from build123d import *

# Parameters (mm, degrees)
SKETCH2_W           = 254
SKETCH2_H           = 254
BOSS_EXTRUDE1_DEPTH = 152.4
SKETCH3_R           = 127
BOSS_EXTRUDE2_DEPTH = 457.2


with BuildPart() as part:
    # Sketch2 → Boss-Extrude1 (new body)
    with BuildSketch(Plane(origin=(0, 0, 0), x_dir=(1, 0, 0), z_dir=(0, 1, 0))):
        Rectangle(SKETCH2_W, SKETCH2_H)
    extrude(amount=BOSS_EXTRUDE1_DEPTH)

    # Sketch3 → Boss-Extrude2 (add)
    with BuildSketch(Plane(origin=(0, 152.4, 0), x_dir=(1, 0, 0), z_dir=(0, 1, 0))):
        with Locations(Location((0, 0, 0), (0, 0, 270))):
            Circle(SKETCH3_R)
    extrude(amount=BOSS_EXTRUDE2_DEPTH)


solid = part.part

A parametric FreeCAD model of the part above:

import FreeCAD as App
import Part
import Sketcher
Q = App.Units.Quantity

doc = App.newDocument("Part")
body = doc.addObject("PartDesign::Body", "Body")

sketch1 = body.newObject("Sketcher::SketchObject", "Sketch")
sketch1.AttachmentSupport = (doc.getObject("XZ_Plane"), [""])
sketch1.MapMode = "FlatFace"
sketch1.addGeometry([
    Part.LineSegment(App.Vector(-127, -127, 0), App.Vector(-127, 127, 0)),
    Part.LineSegment(App.Vector(-127, 127, 0), App.Vector(127, 127, 0)),
    Part.LineSegment(App.Vector(127, 127, 0), App.Vector(127, -127, 0)),
    Part.LineSegment(App.Vector(127, -127, 0), App.Vector(-127, -127, 0)),
], False)
sketch1.addConstraint([
    Sketcher.Constraint("Coincident", 0, 2, 1, 1),
    Sketcher.Constraint("Coincident", 1, 2, 2, 1),
    Sketcher.Constraint("Coincident", 2, 2, 3, 1),
    Sketcher.Constraint("Coincident", 3, 2, 0, 1),
    Sketcher.Constraint("Vertical", 0),
    Sketcher.Constraint("Horizontal", 1),
    Sketcher.Constraint("Vertical", 2),
    Sketcher.Constraint("Horizontal", 3),
    Sketcher.Constraint("Symmetric", 0, 2, 2, 2, -1, 1),
    Sketcher.Constraint("Equal", 3, 0),
    Sketcher.Constraint("DistanceX", 1, 1, 1, 2, Q("10 in")),
])
pad1 = body.newObject("PartDesign::Pad", "Pad")
pad1.Profile = sketch1
pad1.Length = Q("6 in")
pad1.Reversed = True

sketch2 = body.newObject("Sketcher::SketchObject", "Sketch001")
sketch2.AttachmentSupport = (doc.getObject("XZ_Plane"), [""])
sketch2.MapMode = "FlatFace"
sketch2.AttachmentOffset = App.Placement(App.Vector(0, 0, -6 * 25.4), App.Rotation())
sketch2.addGeometry(Part.Circle(App.Vector(0, 0, 0), App.Vector(0, 0, 1), 127), False)
sketch2.addConstraint([
    Sketcher.Constraint("Coincident", 0, 3, -1, 1),
    Sketcher.Constraint("Diameter", 0, Q("10 in")),
])
pad2 = body.newObject("PartDesign::Pad", "Pad001")
pad2.Profile = sketch2
pad2.Length = Q("18 in")
pad2.Reversed = True

doc.recompute()
